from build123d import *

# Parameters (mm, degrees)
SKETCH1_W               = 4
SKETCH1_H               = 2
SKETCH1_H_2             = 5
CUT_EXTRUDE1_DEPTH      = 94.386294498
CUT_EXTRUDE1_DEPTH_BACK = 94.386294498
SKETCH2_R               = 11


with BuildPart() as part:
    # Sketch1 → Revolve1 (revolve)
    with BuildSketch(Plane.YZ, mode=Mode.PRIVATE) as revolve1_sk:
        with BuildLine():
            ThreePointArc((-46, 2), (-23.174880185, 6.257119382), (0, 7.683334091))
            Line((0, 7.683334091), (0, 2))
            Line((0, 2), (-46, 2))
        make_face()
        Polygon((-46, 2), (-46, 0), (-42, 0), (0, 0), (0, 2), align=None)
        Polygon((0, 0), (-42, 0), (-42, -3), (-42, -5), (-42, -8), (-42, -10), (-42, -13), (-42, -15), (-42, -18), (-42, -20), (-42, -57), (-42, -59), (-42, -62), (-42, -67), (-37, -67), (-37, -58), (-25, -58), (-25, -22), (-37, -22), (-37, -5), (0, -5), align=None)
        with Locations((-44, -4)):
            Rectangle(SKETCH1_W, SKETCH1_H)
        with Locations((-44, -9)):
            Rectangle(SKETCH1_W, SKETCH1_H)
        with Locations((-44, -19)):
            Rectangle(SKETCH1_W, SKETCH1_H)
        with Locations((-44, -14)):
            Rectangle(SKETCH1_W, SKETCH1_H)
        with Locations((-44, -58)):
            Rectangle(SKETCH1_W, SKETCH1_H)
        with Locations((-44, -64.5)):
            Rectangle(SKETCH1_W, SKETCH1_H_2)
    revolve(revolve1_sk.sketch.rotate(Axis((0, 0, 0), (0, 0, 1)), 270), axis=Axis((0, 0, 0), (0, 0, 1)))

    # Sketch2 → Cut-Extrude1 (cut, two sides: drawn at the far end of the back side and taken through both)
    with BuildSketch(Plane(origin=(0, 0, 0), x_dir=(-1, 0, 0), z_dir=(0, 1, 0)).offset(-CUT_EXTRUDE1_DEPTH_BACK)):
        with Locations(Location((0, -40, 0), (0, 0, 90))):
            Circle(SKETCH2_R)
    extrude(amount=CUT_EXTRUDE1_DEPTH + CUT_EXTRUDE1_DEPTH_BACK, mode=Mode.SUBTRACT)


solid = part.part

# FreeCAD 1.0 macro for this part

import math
import FreeCAD as App
import Part
import Sketcher
from FreeCAD import Vector
Q = App.Units.Quantity

doc = App.newDocument("Part")
params = doc.addObject("Spreadsheet::Sheet", "Params")
for row, (alias, value) in enumerate([
    ("sketch1_radius", "189 mm"),
    ("sketch1_width", "4 mm"),
    ("sketch1_width2", "9 mm"),
    ("sketch1_width3", "12 mm"),
    ("sketch1_width4", "37 mm"),
    ("revolution_angle", "360 deg"),
    ("sketch2_diameter", "22 mm"),
], start=1):
    params.set(f"A{row}", alias)
    params.set(f"B{row}", "=" + value)
    params.setAlias(f"B{row}", alias)

body = doc.addObject("PartDesign::Body", "Body")

sketch1 = doc.addObject("Sketcher::SketchObject", "Sketch")
body.addObject(sketch1)
sketch1.AttachmentSupport = (doc.YZ_Plane, [""])
sketch1.MapMode = "FlatFace"
sketch1.addGeometry([
    Part.ArcOfCircle(Part.Circle(Vector(0, -181.3, 0), Vector(0, 0, 1), 189), math.radians(90), math.radians(104.09)),
    Part.LineSegment(Vector(-46, 2, 0), Vector(-46, 0, 0)),
    Part.LineSegment(Vector(-46, 0, 0), Vector(-42, 0, 0)),
    Part.LineSegment(Vector(-42, 0, 0), Vector(-42, -3, 0)),
    Part.LineSegment(Vector(-42, -3, 0), Vector(-46, -3, 0)),
    Part.LineSegment(Vector(-46, -3, 0), Vector(-46, -5, 0)),
    Part.LineSegment(Vector(-46, -5, 0), Vector(-42, -5, 0)),
    Part.LineSegment(Vector(-42, -5, 0), Vector(-42, -8, 0)),
    Part.LineSegment(Vector(-42, -8, 0), Vector(-46, -8, 0)),
    Part.LineSegment(Vector(-46, -8, 0), Vector(-46, -10, 0)),
    Part.LineSegment(Vector(-46, -10, 0), Vector(-42, -10, 0)),
    Part.LineSegment(Vector(-42, -10, 0), Vector(-42, -13, 0)),
    Part.LineSegment(Vector(-42, -13, 0), Vector(-46, -13, 0)),
    Part.LineSegment(Vector(-46, -13, 0), Vector(-46, -15, 0)),
    Part.LineSegment(Vector(-46, -15, 0), Vector(-42, -15, 0)),
    Part.LineSegment(Vector(-42, -15, 0), Vector(-42, -18, 0)),
    Part.LineSegment(Vector(-42, -18, 0), Vector(-46, -18, 0)),
    Part.LineSegment(Vector(-46, -18, 0), Vector(-46, -20, 0)),
    Part.LineSegment(Vector(-46, -20, 0), Vector(-42, -20, 0)),
    Part.LineSegment(Vector(-42, -20, 0), Vector(-42, -57, 0)),
    Part.LineSegment(Vector(-42, -57, 0), Vector(-46, -57, 0)),
    Part.LineSegment(Vector(-46, -57, 0), Vector(-46, -59, 0)),
    Part.LineSegment(Vector(-46, -59, 0), Vector(-42, -59, 0)),
    Part.LineSegment(Vector(-42, -59, 0), Vector(-42, -62, 0)),
    Part.LineSegment(Vector(-42, -62, 0), Vector(-46, -62, 0)),
    Part.LineSegment(Vector(-46, -62, 0), Vector(-46, -67, 0)),
    Part.LineSegment(Vector(-46, -67, 0), Vector(-37, -67, 0)),
    Part.LineSegment(Vector(-37, -67, 0), Vector(-37, -58, 0)),
    Part.LineSegment(Vector(-37, -58, 0), Vector(-25, -58, 0)),
    Part.LineSegment(Vector(-25, -58, 0), Vector(-25, -22, 0)),
    Part.LineSegment(Vector(-25, -22, 0), Vector(-37, -22, 0)),
    Part.LineSegment(Vector(-37, -22, 0), Vector(-37, -5, 0)),
    Part.LineSegment(Vector(-37, -5, 0), Vector(0, -5, 0)),
    Part.LineSegment(Vector(0, -5, 0), Vector(0, 7.7, 0)),
], False)
sketch1.addConstraint([
    Sketcher.Constraint("Coincident", 0, 2, 1, 1),
    Sketcher.Constraint("Coincident", 1, 2, 2, 1),
    Sketcher.Constraint("Coincident", 2, 2, 3, 1),
    Sketcher.Constraint("Coincident", 3, 2, 4, 1),
    Sketcher.Constraint("Coincident", 4, 2, 5, 1),
    Sketcher.Constraint("Coincident", 5, 2, 6, 1),
    Sketcher.Constraint("Coincident", 6, 2, 7, 1),
    Sketcher.Constraint("Coincident", 7, 2, 8, 1),
    Sketcher.Constraint("Coincident", 8, 2, 9, 1),
    Sketcher.Constraint("Coincident", 9, 2, 10, 1),
    Sketcher.Constraint("Coincident", 10, 2, 11, 1),
    Sketcher.Constraint("Coincident", 11, 2, 12, 1),
    Sketcher.Constraint("Coincident", 12, 2, 13, 1),
    Sketcher.Constraint("Coincident", 13, 2, 14, 1),
    Sketcher.Constraint("Coincident", 14, 2, 15, 1),
    Sketcher.Constraint("Coincident", 15, 2, 16, 1),
    Sketcher.Constraint("Coincident", 16, 2, 17, 1),
    Sketcher.Constraint("Coincident", 17, 2, 18, 1),
    Sketcher.Constraint("Coincident", 18, 2, 19, 1),
    Sketcher.Constraint("Coincident", 19, 2, 20, 1),
    Sketcher.Constraint("Coincident", 20, 2, 21, 1),
    Sketcher.Constraint("Coincident", 21, 2, 22, 1),
    Sketcher.Constraint("Coincident", 22, 2, 23, 1),
    Sketcher.Constraint("Coincident", 23, 2, 24, 1),
    Sketcher.Constraint("Coincident", 24, 2, 25, 1),
    Sketcher.Constraint("Coincident", 25, 2, 26, 1),
    Sketcher.Constraint("Coincident", 26, 2, 27, 1),
    Sketcher.Constraint("Coincident", 27, 2, 28, 1),
    Sketcher.Constraint("Coincident", 28, 2, 29, 1),
    Sketcher.Constraint("Coincident", 29, 2, 30, 1),
    Sketcher.Constraint("Coincident", 30, 2, 31, 1),
    Sketcher.Constraint("Coincident", 31, 2, 32, 1),
    Sketcher.Constraint("Coincident", 32, 2, 33, 1),
    Sketcher.Constraint("Coincident", 33, 2, 0, 1),
    Sketcher.Constraint("Vertical", 1),
    Sketcher.Constraint("Horizontal", 2),
    Sketcher.Constraint("Vertical", 3),
    Sketcher.Constraint("Horizontal", 4),
    Sketcher.Constraint("Vertical", 5),
    Sketcher.Constraint("Horizontal", 6),
    Sketcher.Constraint("Vertical", 7),
    Sketcher.Constraint("Horizontal", 8),
    Sketcher.Constraint("Vertical", 9),
    Sketcher.Constraint("Horizontal", 10),
    Sketcher.Constraint("Vertical", 11),
    Sketcher.Constraint("Horizontal", 12),
    Sketcher.Constraint("Vertical", 13),
    Sketcher.Constraint("Horizontal", 14),
    Sketcher.Constraint("Vertical", 15),
    Sketcher.Constraint("Horizontal", 16),
    Sketcher.Constraint("Vertical", 17),
    Sketcher.Constraint("Horizontal", 18),
    Sketcher.Constraint("Vertical", 19),
    Sketcher.Constraint("Horizontal", 20),
    Sketcher.Constraint("Vertical", 21),
    Sketcher.Constraint("Horizontal", 22),
    Sketcher.Constraint("Vertical", 23),
    Sketcher.Constraint("Horizontal", 24),
    Sketcher.Constraint("Vertical", 25),
    Sketcher.Constraint("Horizontal", 26),
    Sketcher.Constraint("Vertical", 27),
    Sketcher.Constraint("Horizontal", 28),
    Sketcher.Constraint("Vertical", 29),
    Sketcher.Constraint("Horizontal", 30),
    Sketcher.Constraint("Vertical", 31),
    Sketcher.Constraint("Horizontal", 32),
    Sketcher.Constraint("Vertical", 33),
    Sketcher.Constraint("PointOnObject", 0, 3, -2),
    Sketcher.Constraint("PointOnObject", 1, 2, -1),
    Sketcher.Constraint("PointOnObject", 32, 2, -2),
    Sketcher.Constraint("Horizontal", 6, 2, 31, 2),
    Sketcher.Constraint("Vertical", 1, 2, 4, 2),
    Sketcher.Constraint("Vertical", 3, 2, 6, 2),
    Sketcher.Constraint("Vertical", 5, 2, 8, 2),
    Sketcher.Constraint("Vertical", 7, 2, 10, 2),
    Sketcher.Constraint("Vertical", 9, 2, 12, 2),
    Sketcher.Constraint("Vertical", 11, 2, 14, 2),
    Sketcher.Constraint("Vertical", 13, 2, 16, 2),
    Sketcher.Constraint("Vertical", 15, 2, 18, 2),
    Sketcher.Constraint("Vertical", 17, 2, 20, 2),
    Sketcher.Constraint("Vertical", 19, 2, 22, 2),
    Sketcher.Constraint("Vertical", 21, 2, 24, 2),
    Sketcher.Constraint("Vertical", 27, 2, 30, 2),
    Sketcher.Constraint("Equal", 1, 5),
    Sketcher.Constraint("Equal", 3, 7),
    Sketcher.Constraint("Equal", 5, 9),
    Sketcher.Constraint("Equal", 7, 11),
    Sketcher.Constraint("Equal", 9, 13),
    Sketcher.Constraint("Equal", 11, 15),
    Sketcher.Constraint("Equal", 13, 17),
    Sketcher.Constraint("Equal", 32, 19),
    Sketcher.Constraint("Equal", 17, 21),
    Sketcher.Constraint("Equal", 15, 23),
    Sketcher.Constraint("Equal", 26, 27),
    Sketcher.Constraint("Radius", 0, Q("189 mm")),
    Sketcher.Constraint("DistanceX", 2, 1, 2, 2, Q("4 mm")),
    Sketcher.Constraint("DistanceX", 26, 1, 26, 2, Q("9 mm")),
    Sketcher.Constraint("DistanceX", 28, 1, 28, 2, Q("12 mm")),
    Sketcher.Constraint("DistanceX", 32, 1, 32, 2, Q("37 mm")),
    Sketcher.Constraint("DistanceY", 1, 2, 1, 1, Q("2 mm")),
    Sketcher.Constraint("DistanceY", 3, 2, 3, 1, Q("3 mm")),
    Sketcher.Constraint("DistanceY", 25, 2, 25, 1, Q("5 mm")),
    Sketcher.Constraint("DistanceY", 29, 1, 29, 2, Q("36 mm")),
])
sketch1.setExpression("Constraints[94]", "Params.sketch1_radius")
sketch1.setExpression("Constraints[95]", "Params.sketch1_width")
sketch1.setExpression("Constraints[96]", "Params.sketch1_width2")
sketch1.setExpression("Constraints[97]", "Params.sketch1_width3")
sketch1.setExpression("Constraints[98]", "Params.sketch1_width4")
revolution = doc.addObject("PartDesign::Revolution", "Revolution")
body.addObject(revolution)
revolution.Profile = sketch1
revolution.ReferenceAxis = (sketch1, ["V_Axis"])
revolution.setExpression("Angle", "Params.revolution_angle")

sketch2 = doc.addObject("Sketcher::SketchObject", "Sketch001")
body.addObject(sketch2)
sketch2.AttachmentSupport = (doc.XZ_Plane, [""])
sketch2.MapMode = "FlatFace"
sketch2.addGeometry(Part.Circle(Vector(0, -40, 0), Vector(0, 0, 1), 11), False)
sketch2.addConstraint([
    Sketcher.Constraint("PointOnObject", 0, 3, -2),
    Sketcher.Constraint("Diameter", 0, Q("22 mm")),
    Sketcher.Constraint("DistanceY", 0, 3, -1, 1, Q("40 mm")),
])
sketch2.setExpression("Constraints[1]", "Params.sketch2_diameter")
pocket1 = doc.addObject("PartDesign::Pocket", "Pocket")
body.addObject(pocket1)
pocket1.Profile = sketch2
pocket1.Type = "ThroughAll"
pocket1.Midplane = True

doc.recompute()
